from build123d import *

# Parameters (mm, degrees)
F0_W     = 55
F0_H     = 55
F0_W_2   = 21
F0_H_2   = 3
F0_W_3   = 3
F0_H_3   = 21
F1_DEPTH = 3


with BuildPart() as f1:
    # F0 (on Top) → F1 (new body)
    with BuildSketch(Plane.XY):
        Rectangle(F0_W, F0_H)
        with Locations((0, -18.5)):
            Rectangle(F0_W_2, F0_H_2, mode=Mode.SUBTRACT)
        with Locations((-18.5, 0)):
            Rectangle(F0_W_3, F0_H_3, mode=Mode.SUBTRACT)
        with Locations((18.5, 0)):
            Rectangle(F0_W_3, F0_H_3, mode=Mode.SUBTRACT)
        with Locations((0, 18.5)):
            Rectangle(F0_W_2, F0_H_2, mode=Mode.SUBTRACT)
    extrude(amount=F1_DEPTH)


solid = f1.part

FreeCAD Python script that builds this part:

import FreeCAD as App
import Part
import Sketcher
Q = App.Units.Quantity


def add_polygon(sketch, points):
    """Adds a closed chain of lines whose ends are joined by coincident constraints."""
    first, n = sketch.GeometryCount, len(points)
    for a, b in zip(points, points[1:] + points[:1]):
        sketch.addGeometry(Part.LineSegment(App.Vector(*a, 0), App.Vector(*b, 0)), False)
    for i in range(n):
        sketch.addConstraint(Sketcher.Constraint("Coincident", first + i, 2, first + (i + 1) % n, 1))

doc = App.newDocument("Part")
body = doc.addObject("PartDesign::Body", "Body")

# Sketch on XY plane
sketch1 = doc.addObject("Sketcher::SketchObject", "Sketch")
body.addObject(sketch1)
sketch1.AttachmentSupport = (doc.XY_Plane, [""])
sketch1.MapMode = "FlatFace"
add_polygon(sketch1, [(-27.5, 27.5), (-27.5, -27.5), (27.5, -27.5), (27.5, 27.5)])  # lines 0-3
add_polygon(sketch1, [(10.5, -20), (-10.5, -20), (-10.5, -17), (10.5, -17)])  # lines 4-7
add_polygon(sketch1, [(-17, -10.5), (-20, -10.5), (-20, 10.5), (-17, 10.5)])  # lines 8-11
add_polygon(sketch1, [(20, -10.5), (17, -10.5), (17, 10.5), (20, 10.5)])  # lines 12-15
add_polygon(sketch1, [(10.5, 17), (-10.5, 17), (-10.5, 20), (10.5, 20)])  # lines 16-19
sketch1.addConstraint([
    Sketcher.Constraint("Vertical", 0),
    Sketcher.Constraint("Horizontal", 1),
    Sketcher.Constraint("Vertical", 2),
    Sketcher.Constraint("Horizontal", 3),
    Sketcher.Constraint("Horizontal", 4),
    Sketcher.Constraint("Vertical", 5),
    Sketcher.Constraint("Horizontal", 6),
    Sketcher.Constraint("Vertical", 7),
    Sketcher.Constraint("Horizontal", 8),
    Sketcher.Constraint("Vertical", 9),
    Sketcher.Constraint("Horizontal", 10),
    Sketcher.Constraint("Vertical", 11),
    Sketcher.Constraint("Horizontal", 12),
    Sketcher.Constraint("Vertical", 13),
    Sketcher.Constraint("Horizontal", 14),
    Sketcher.Constraint("Vertical", 15),
    Sketcher.Constraint("Horizontal", 16),
    Sketcher.Constraint("Vertical", 17),
    Sketcher.Constraint("Horizontal", 18),
    Sketcher.Constraint("Vertical", 19),
    Sketcher.Constraint("Symmetric", 0, 2, 2, 2, -1, 1),
    Sketcher.Constraint("Symmetric", 10, 2, 12, 2, -1, 1),
    Sketcher.Constraint("Symmetric", 8, 2, 14, 2, -1, 1),
    Sketcher.Constraint("Symmetric", 6, 2, 16, 2, -1, 1),
    Sketcher.Constraint("Symmetric", 4, 2, 18, 2, -1, 1),
    Sketcher.Constraint("Horizontal", 11, 2, 12, 2),
    Sketcher.Constraint("Vertical", 5, 2, 16, 2),
    Sketcher.Constraint("Equal", 3, 0),
    Sketcher.Constraint("Equal", 14, 5),
    Sketcher.Constraint("Equal", 18, 9),
    Sketcher.Constraint("DistanceX", 1, 1, 1, 2, Q("55 mm")),
    Sketcher.Constraint("DistanceX", 4, 2, 4, 1, Q("21 mm")),
    Sketcher.Constraint("DistanceX", 8, 2, 8, 1, Q("3 mm")),
    Sketcher.Constraint("DistanceY", 4, 2, -1, 1, Q("20 mm")),
    Sketcher.Constraint("DistanceX", 8, 2, -1, 1, Q("20 mm")),
])
pad1 = doc.addObject("PartDesign::Pad", "Pad")
body.addObject(pad1)
pad1.Profile = sketch1
pad1.Length = 3

doc.recompute()
